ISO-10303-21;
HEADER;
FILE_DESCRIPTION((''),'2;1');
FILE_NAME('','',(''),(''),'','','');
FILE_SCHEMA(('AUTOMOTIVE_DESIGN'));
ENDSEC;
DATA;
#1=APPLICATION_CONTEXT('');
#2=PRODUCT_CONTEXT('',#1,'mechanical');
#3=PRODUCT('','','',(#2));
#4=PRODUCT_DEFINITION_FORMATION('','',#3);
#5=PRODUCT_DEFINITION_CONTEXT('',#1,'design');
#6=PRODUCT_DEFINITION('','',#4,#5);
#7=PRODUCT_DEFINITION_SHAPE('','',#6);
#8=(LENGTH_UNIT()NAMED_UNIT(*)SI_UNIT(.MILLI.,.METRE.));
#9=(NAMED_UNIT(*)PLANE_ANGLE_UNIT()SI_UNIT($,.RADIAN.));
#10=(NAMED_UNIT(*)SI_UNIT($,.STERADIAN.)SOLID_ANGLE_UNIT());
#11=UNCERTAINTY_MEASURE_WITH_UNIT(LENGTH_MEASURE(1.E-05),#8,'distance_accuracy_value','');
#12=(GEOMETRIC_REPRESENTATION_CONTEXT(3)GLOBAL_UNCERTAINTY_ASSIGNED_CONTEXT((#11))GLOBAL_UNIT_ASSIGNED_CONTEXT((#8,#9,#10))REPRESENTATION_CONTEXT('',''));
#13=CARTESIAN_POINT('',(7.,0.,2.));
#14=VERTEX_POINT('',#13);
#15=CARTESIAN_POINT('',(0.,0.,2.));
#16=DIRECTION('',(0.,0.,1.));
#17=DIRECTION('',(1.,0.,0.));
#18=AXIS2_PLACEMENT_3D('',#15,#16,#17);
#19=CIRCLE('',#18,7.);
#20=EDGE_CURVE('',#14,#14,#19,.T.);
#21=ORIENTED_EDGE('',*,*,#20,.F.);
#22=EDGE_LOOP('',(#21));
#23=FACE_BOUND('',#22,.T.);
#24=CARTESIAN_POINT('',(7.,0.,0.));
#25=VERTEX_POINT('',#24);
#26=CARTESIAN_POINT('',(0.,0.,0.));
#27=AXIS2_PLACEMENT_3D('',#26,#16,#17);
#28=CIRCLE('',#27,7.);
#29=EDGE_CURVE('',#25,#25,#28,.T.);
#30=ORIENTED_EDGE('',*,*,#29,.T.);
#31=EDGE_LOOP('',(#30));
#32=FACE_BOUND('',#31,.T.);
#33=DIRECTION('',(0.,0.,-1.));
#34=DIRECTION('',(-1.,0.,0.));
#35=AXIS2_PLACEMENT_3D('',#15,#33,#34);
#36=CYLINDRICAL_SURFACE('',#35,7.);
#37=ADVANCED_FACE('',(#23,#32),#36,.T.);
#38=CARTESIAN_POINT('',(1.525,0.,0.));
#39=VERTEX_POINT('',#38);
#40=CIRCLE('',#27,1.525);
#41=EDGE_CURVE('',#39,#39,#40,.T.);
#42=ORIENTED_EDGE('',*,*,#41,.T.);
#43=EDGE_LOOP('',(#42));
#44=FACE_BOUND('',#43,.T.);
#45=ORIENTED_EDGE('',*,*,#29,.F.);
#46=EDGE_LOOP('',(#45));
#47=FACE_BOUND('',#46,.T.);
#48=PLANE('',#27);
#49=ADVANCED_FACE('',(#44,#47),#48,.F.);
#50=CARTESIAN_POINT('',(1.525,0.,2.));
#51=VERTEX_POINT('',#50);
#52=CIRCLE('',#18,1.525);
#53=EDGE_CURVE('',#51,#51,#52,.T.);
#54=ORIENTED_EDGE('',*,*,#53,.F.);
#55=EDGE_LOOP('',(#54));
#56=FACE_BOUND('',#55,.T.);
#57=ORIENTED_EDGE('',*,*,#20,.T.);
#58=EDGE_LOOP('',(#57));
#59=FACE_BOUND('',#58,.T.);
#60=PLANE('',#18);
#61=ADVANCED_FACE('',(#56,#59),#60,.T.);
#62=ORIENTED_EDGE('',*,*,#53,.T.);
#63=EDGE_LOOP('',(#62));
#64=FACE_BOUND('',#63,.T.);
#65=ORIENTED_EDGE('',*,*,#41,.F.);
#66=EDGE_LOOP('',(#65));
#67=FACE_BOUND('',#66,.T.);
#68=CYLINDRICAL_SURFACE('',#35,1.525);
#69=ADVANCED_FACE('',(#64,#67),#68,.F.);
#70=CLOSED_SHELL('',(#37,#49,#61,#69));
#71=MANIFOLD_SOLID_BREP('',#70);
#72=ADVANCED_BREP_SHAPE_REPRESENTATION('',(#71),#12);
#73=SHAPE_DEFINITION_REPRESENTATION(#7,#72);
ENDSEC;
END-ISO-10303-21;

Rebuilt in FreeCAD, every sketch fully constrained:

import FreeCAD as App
import Part
import Sketcher

V = App.Vector
Q = App.Units.Quantity

doc = App.newDocument("Part")
params = doc.addObject("Spreadsheet::Sheet", "Params")
for row, (alias, value) in enumerate([
    ("sketch1_diameter", "14 mm"),
    ("sketch1_diameter2", "3.05 mm"),
    ("pad1_length", "2 mm"),
], start=1):
    params.set(f"A{row}", alias)
    params.set(f"B{row}", "=" + value)
    params.setAlias(f"B{row}", alias)

body = doc.addObject("PartDesign::Body", "Body")

# Sketch on XY plane
sketch1 = doc.addObject("Sketcher::SketchObject", "Sketch")
body.addObject(sketch1)
sketch1.AttachmentSupport = (doc.XY_Plane, [""])
sketch1.MapMode = "FlatFace"
sketch1.addGeometry(Part.Circle(V(0, 0, 0), V(0, 0, 1), 7), False)
sketch1.addGeometry(Part.Circle(V(0, 0, 0), V(0, 0, 1), 1.525), False)
sketch1.addConstraint(Sketcher.Constraint("Coincident", 0, 3, -1, 1))
sketch1.addConstraint(Sketcher.Constraint("Coincident", 1, 3, -1, 1))
sketch1.addConstraint(Sketcher.Constraint("Diameter", 0, Q("14 mm")))
sketch1.addConstraint(Sketcher.Constraint("Diameter", 1, Q("3.05 mm")))
sketch1.setExpression("Constraints[2]", "Params.sketch1_diameter")
sketch1.setExpression("Constraints[3]", "Params.sketch1_diameter2")
pad1 = doc.addObject("PartDesign::Pad", "Pad")
body.addObject(pad1)
pad1.Profile = sketch1
pad1.setExpression("Length", "Params.pad1_length")

doc.recompute()
